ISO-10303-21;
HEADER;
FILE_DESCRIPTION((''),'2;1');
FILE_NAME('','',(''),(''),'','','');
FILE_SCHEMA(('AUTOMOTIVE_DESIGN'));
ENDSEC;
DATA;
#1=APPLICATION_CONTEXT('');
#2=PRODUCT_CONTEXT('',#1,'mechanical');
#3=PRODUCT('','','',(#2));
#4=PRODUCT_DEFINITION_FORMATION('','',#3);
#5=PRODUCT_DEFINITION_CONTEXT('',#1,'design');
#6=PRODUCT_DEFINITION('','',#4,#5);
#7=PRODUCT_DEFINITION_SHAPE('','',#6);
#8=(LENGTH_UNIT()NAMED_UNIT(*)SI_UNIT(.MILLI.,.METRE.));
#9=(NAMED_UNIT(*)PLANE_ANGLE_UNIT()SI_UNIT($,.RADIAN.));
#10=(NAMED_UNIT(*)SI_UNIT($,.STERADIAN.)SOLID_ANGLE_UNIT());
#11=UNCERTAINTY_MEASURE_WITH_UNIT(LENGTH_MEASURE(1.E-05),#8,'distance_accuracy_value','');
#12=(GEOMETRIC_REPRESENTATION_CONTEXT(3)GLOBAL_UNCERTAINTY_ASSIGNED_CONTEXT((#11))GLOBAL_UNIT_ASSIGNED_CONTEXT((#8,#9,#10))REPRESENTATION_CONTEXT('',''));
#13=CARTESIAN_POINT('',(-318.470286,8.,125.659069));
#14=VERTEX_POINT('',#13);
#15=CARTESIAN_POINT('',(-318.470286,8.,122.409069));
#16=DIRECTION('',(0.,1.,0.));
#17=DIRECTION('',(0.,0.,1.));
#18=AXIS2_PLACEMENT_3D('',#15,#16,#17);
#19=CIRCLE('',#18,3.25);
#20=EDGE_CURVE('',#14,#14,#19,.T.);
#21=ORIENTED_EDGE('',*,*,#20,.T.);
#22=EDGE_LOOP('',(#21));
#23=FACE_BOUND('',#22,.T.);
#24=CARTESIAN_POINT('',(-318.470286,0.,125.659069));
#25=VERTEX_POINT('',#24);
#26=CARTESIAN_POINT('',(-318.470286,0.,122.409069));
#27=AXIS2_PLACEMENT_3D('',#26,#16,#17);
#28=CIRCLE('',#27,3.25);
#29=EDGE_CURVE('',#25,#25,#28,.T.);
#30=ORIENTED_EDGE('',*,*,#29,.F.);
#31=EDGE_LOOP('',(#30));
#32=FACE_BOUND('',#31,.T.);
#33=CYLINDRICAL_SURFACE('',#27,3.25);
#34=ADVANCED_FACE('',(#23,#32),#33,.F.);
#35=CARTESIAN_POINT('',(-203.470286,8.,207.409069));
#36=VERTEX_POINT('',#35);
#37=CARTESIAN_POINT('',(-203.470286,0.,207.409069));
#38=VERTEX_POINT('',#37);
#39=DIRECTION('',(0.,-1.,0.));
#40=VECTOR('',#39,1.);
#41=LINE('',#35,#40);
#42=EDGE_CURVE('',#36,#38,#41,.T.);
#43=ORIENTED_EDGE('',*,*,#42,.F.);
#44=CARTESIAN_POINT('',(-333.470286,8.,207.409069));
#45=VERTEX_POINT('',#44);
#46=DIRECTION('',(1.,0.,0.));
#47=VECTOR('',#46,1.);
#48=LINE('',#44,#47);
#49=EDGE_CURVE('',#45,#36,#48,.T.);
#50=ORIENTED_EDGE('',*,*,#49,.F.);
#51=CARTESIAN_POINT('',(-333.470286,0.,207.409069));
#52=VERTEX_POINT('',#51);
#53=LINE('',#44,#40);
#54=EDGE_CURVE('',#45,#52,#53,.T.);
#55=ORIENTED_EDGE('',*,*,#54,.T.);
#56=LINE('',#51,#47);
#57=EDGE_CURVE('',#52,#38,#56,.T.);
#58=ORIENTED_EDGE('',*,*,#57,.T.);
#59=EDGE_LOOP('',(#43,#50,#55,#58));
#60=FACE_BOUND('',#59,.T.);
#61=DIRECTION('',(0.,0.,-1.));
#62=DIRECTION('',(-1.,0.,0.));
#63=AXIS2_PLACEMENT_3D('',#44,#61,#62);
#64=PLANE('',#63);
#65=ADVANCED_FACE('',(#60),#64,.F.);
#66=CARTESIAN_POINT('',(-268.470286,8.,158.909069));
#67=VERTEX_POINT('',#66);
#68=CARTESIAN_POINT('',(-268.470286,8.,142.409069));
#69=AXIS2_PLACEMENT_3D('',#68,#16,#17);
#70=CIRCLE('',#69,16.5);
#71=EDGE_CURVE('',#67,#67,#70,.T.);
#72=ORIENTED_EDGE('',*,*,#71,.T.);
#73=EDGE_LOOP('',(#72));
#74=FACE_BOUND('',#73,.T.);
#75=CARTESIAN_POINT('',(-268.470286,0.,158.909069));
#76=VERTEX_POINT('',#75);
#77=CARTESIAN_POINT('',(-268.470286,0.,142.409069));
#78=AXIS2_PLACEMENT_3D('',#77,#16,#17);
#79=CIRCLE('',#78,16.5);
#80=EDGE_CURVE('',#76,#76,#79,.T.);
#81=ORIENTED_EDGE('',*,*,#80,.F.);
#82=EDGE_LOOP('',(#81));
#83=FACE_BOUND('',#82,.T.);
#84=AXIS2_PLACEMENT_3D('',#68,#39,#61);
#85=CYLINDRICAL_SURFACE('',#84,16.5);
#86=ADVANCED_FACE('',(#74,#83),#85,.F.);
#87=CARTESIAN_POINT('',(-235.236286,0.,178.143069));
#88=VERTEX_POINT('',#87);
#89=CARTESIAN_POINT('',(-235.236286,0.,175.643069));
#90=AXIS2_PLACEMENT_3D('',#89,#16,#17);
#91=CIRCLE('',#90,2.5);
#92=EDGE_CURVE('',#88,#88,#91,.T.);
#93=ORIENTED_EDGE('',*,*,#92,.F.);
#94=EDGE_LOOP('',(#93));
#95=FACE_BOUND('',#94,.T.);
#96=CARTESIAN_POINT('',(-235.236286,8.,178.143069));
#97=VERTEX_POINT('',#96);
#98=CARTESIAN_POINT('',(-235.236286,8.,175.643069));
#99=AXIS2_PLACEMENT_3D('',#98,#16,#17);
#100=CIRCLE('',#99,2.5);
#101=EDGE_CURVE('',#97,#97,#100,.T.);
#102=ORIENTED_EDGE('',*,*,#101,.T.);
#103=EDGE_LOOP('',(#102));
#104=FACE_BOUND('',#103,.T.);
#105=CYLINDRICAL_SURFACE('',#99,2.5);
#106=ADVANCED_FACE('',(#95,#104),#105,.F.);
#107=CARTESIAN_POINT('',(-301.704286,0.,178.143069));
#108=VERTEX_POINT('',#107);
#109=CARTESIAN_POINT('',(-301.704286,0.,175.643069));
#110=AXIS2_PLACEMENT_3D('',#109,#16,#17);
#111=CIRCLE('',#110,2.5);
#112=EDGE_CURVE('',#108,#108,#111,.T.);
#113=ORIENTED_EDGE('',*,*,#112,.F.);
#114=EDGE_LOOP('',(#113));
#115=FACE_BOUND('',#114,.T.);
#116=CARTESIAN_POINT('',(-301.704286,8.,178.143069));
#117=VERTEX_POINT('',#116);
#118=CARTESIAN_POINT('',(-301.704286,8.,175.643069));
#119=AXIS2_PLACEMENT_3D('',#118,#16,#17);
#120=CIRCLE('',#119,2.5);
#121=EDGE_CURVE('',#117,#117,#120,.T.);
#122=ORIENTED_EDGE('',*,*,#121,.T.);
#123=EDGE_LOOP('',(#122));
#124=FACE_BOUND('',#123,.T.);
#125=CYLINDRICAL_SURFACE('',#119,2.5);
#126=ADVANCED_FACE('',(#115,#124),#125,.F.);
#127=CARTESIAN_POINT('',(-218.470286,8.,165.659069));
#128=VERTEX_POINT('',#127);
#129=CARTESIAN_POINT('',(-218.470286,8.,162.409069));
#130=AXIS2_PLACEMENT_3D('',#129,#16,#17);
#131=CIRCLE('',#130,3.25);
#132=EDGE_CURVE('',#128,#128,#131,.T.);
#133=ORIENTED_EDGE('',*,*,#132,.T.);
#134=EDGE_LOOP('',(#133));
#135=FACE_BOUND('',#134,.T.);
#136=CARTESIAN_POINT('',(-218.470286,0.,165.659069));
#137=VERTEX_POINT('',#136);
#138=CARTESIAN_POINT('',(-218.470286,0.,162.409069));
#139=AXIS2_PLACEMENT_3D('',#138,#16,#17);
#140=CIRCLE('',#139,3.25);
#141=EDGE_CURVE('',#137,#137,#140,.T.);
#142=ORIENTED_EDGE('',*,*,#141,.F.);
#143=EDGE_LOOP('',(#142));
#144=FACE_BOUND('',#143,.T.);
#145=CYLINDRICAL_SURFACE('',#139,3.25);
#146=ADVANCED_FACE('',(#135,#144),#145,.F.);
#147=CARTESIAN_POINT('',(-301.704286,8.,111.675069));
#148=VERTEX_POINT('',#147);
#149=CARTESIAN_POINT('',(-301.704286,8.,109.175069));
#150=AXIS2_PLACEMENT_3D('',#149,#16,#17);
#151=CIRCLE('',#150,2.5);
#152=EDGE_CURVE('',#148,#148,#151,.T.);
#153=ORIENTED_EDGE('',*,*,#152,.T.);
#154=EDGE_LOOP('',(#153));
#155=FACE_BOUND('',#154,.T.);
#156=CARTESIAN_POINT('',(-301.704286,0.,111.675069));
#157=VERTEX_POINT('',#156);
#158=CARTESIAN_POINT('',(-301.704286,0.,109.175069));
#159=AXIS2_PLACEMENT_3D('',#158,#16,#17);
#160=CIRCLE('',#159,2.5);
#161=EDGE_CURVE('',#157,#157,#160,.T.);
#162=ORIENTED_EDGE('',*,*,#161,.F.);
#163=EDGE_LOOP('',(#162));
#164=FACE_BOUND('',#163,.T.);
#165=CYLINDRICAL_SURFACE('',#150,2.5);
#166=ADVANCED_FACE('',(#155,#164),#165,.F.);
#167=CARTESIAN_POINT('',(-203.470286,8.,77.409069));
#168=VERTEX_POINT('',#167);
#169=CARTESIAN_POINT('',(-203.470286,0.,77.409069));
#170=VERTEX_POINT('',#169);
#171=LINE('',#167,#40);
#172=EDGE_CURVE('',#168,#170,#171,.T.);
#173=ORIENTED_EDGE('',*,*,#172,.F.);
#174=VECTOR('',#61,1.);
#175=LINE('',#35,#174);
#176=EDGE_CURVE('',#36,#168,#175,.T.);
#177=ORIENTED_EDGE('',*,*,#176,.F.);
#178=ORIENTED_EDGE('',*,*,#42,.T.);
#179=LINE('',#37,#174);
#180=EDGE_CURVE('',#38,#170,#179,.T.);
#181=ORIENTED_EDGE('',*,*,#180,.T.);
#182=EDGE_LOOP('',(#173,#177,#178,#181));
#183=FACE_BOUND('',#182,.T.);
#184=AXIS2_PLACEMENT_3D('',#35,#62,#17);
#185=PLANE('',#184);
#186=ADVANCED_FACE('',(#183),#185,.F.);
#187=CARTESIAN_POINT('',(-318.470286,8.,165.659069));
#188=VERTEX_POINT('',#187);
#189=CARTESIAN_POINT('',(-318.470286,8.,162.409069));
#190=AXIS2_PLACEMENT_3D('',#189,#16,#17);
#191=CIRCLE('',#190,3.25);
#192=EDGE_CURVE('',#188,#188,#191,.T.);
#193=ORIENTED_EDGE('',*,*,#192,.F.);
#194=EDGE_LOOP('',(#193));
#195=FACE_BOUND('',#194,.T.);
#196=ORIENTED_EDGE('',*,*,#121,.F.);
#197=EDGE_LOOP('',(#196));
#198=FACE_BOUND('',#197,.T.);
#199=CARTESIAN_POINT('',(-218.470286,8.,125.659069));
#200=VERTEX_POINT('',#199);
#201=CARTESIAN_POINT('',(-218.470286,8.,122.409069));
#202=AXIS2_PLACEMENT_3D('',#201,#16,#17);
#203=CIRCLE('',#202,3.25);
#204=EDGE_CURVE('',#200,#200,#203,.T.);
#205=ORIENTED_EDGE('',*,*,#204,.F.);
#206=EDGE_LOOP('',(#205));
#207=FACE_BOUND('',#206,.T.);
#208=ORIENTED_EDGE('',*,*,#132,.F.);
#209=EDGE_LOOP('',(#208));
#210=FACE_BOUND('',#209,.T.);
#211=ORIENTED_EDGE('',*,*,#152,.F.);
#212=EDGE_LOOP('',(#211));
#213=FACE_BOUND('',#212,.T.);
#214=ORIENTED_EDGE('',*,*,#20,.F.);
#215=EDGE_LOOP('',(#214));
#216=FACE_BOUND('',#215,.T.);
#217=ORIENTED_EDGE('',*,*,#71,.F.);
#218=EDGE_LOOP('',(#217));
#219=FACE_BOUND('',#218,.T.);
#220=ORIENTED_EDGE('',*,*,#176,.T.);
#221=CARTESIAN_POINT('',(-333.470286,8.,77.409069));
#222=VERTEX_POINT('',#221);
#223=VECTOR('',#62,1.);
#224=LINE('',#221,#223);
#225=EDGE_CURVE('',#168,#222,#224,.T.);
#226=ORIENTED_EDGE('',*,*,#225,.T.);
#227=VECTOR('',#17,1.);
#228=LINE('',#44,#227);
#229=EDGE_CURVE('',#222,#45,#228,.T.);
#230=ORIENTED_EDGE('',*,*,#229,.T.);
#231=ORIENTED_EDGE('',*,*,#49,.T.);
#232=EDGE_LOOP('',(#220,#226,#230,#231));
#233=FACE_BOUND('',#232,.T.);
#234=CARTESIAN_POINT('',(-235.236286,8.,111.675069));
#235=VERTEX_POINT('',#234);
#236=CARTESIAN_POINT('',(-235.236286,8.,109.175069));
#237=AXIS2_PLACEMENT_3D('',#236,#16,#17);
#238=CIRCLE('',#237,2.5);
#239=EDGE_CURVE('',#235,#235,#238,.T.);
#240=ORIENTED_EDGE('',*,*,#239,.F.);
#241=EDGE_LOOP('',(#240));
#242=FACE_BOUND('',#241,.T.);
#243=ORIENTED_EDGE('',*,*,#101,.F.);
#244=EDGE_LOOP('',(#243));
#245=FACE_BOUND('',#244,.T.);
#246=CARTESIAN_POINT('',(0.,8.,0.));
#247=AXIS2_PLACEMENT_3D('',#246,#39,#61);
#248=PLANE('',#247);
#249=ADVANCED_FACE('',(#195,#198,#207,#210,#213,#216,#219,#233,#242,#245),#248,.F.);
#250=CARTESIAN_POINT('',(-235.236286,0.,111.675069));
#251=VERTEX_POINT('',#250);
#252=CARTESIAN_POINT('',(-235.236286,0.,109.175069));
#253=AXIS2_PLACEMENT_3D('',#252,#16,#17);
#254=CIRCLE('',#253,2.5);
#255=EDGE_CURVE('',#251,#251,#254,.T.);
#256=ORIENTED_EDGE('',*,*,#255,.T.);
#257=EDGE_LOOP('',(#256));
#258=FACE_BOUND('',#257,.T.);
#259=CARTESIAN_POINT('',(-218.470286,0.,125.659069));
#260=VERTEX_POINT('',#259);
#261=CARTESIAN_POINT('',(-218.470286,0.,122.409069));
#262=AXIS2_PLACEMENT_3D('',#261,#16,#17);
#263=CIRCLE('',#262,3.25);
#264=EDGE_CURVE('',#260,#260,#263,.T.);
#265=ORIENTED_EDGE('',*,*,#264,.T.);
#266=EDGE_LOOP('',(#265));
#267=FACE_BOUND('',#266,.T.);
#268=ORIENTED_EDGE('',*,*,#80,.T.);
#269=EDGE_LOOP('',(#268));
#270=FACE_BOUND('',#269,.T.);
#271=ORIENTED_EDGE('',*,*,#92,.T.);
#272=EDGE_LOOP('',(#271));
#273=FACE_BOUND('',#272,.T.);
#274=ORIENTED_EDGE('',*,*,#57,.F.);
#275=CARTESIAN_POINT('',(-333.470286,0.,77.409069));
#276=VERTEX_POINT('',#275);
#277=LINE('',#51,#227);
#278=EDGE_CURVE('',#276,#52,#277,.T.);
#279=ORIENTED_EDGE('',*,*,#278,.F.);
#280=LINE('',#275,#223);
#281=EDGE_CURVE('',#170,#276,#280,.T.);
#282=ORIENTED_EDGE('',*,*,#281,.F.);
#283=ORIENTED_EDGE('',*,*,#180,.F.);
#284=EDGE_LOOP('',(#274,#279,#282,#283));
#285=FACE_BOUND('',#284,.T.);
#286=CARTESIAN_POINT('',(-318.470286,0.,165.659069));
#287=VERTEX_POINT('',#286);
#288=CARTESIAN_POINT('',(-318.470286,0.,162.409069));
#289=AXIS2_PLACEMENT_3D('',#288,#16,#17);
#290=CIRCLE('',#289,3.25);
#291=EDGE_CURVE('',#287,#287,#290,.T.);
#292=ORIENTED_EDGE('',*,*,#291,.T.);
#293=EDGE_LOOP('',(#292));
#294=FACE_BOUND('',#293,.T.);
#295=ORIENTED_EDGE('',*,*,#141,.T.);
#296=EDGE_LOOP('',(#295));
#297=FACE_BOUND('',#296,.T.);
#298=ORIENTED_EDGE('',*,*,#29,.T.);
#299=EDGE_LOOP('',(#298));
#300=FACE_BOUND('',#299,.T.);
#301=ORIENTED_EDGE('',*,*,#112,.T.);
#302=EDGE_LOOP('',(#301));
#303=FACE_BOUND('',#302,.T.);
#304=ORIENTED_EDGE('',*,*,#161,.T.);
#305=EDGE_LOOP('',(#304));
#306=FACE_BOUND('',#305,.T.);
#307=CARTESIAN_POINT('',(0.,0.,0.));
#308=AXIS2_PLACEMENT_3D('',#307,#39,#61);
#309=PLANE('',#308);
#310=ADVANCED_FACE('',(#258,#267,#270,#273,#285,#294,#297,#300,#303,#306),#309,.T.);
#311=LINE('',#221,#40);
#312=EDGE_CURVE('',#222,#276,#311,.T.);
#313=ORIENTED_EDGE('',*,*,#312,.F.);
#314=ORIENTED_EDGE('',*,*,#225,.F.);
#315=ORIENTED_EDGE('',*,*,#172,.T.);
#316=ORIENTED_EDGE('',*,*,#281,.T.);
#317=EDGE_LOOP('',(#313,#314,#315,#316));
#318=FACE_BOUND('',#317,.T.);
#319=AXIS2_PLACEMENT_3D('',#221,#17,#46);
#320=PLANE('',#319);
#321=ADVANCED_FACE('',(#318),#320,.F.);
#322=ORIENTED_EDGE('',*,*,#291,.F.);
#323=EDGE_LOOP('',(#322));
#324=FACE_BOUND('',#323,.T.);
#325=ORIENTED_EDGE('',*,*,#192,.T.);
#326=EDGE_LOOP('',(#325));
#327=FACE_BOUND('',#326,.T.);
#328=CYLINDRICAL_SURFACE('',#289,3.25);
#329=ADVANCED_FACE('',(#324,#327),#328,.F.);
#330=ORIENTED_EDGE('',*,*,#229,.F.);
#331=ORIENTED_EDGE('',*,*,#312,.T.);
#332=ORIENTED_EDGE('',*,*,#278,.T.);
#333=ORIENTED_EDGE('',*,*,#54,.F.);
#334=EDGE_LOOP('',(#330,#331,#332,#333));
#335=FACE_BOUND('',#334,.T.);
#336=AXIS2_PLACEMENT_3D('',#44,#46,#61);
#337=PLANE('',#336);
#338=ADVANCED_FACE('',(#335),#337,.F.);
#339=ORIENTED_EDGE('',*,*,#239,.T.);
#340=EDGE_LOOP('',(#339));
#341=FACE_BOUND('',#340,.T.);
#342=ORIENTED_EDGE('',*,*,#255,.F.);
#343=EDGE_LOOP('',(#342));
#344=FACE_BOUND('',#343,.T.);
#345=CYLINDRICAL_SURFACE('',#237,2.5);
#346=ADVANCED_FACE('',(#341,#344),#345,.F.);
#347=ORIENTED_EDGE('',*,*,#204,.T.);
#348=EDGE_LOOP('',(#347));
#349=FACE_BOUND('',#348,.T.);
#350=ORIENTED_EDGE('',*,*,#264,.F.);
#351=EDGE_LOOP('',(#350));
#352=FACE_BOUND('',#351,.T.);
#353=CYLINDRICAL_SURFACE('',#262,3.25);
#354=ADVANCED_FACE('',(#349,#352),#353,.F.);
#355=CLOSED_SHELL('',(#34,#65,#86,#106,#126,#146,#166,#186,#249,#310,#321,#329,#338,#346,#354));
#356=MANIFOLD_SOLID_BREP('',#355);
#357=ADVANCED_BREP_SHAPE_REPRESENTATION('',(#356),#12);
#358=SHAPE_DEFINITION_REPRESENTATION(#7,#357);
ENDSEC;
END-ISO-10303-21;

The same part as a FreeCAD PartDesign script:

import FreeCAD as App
import Part
import Sketcher

V = App.Vector
Q = App.Units.Quantity


def add_polygon(sketch, points):
    """Adds a closed chain of lines whose ends are joined by coincident constraints."""
    first, n = sketch.GeometryCount, len(points)
    for a, b in zip(points, points[1:] + points[:1]):
        sketch.addGeometry(Part.LineSegment(App.Vector(*a, 0), App.Vector(*b, 0)), False)
    for i in range(n):
        sketch.addConstraint(Sketcher.Constraint("Coincident", first + i, 2, first + (i + 1) % n, 1))

doc = App.newDocument("Part")
body = doc.addObject("PartDesign::Body", "Body")

# Sketch on XZ plane
sketch1 = body.newObject("Sketcher::SketchObject", "Sketch")
sketch1.AttachmentSupport = (doc.getObject("XZ_Plane"), [""])
sketch1.MapMode = "FlatFace"
add_polygon(sketch1, [(-333, 77), (-333, 207), (-203, 207), (-203, 77)])  # lines 0-3
sketch1.addGeometry(Part.Circle(V(-268, 142, 0), V(0, 0, 1), 16), False)  # 4
sketch1.addConstraint([
    Sketcher.Constraint("Vertical", 0),
    Sketcher.Constraint("Horizontal", 1),
    Sketcher.Constraint("Vertical", 2),
    Sketcher.Constraint("Horizontal", 3),
    Sketcher.Constraint("Equal", 3, 0),
    Sketcher.Constraint("Diameter", 4, Q("33 mm")),
    Sketcher.Constraint("DistanceX", 1, 1, 1, 2, Q("130 mm")),
    Sketcher.Constraint("DistanceX", 0, 2, 4, 3, Q("65 mm")),
    Sketcher.Constraint("DistanceY", 4, 3, 0, 2, Q("65 mm")),
    Sketcher.Constraint("DistanceY", -1, 1, 4, 3, Q("142.409069 mm")),
    Sketcher.Constraint("DistanceX", 4, 3, -1, 1, Q("268.470286 mm")),
])
pad1 = body.newObject("PartDesign::Pad", "Pad")
pad1.Profile = sketch1
pad1.Length = 8
pad1.Reversed = True

# Sketch on XZ plane
sketch2 = body.newObject("Sketcher::SketchObject", "Sketch001")
sketch2.AttachmentSupport = (doc.getObject("XZ_Plane"), [""])
sketch2.MapMode = "FlatFace"
sketch2.AttachmentOffset = App.Placement(V(0, 0, -8), App.Rotation())
sketch2.addGeometry([
    Part.Circle(V(-318.5, 162.4, 0), V(0, 0, 1), 3.2),
    Part.Circle(V(-318.5, 122.4, 0), V(0, 0, 1), 3.2),
    Part.Circle(V(-218.5, 122.4, 0), V(0, 0, 1), 3.2),
    Part.Circle(V(-218.5, 162.4, 0), V(0, 0, 1), 3.2),
], False)
sketch2.addConstraint([
    Sketcher.Constraint("Equal", 0, 1),
    Sketcher.Constraint("Equal", 1, 2),
    Sketcher.Constraint("Equal", 2, 3),
    Sketcher.Constraint("Horizontal", 1, 3, 2, 3),
    Sketcher.Constraint("Horizontal", 0, 3, 3, 3),
    Sketcher.Constraint("Vertical", 0, 3, 1, 3),
    Sketcher.Constraint("Vertical", 2, 3, 3, 3),
    Sketcher.Constraint("Diameter", 0, Q("6.5 mm")),
    Sketcher.Constraint("DistanceY", 1, 3, 0, 3, Q("40 mm")),
    Sketcher.Constraint("DistanceX", 1, 3, 2, 3, Q("100 mm")),
    Sketcher.Constraint("DistanceY", -1, 1, 0, 3, Q("162.409069 mm")),
    Sketcher.Constraint("DistanceX", 0, 3, -1, 1, Q("318.470286 mm")),
])
pocket1 = body.newObject("PartDesign::Pocket", "Pocket")
pocket1.Profile = sketch2
pocket1.Type = "ThroughAll"
pocket1.Reversed = True

# Sketch on XZ plane
sketch3 = body.newObject("Sketcher::SketchObject", "Sketch002")
sketch3.AttachmentSupport = (doc.getObject("XZ_Plane"), [""])
sketch3.MapMode = "FlatFace"
sketch3.AttachmentOffset = App.Placement(V(0, 0, -8), App.Rotation())
sketch3.addGeometry([
    Part.Circle(V(-301.7, 109.2, 0), V(0, 0, 1), 2.5),
    Part.Circle(V(-235.2, 109.2, 0), V(0, 0, 1), 2.5),
    Part.Circle(V(-235.2, 175.6, 0), V(0, 0, 1), 2.5),
    Part.Circle(V(-301.7, 175.6, 0), V(0, 0, 1), 2.5),
], False)
sketch3.addConstraint([
    Sketcher.Constraint("Equal", 0, 1),
    Sketcher.Constraint("Equal", 1, 2),
    Sketcher.Constraint("Equal", 2, 3),
    Sketcher.Constraint("Horizontal", 0, 3, 1, 3),
    Sketcher.Constraint("Horizontal", 2, 3, 3, 3),
    Sketcher.Constraint("Vertical", 1, 3, 2, 3),
    Sketcher.Constraint("Vertical", 0, 3, 3, 3),
    Sketcher.Constraint("Diameter", 0, Q("5 mm")),
    Sketcher.Constraint("DistanceX", 0, 3, 1, 3, Q("66.468 mm")),
    Sketcher.Constraint("DistanceY", 1, 3, 2, 3, Q("66.468 mm")),
    Sketcher.Constraint("DistanceY", -1, 1, 0, 3, Q("109.175069 mm")),
    Sketcher.Constraint("DistanceX", 0, 3, -1, 1, Q("301.704286 mm")),
])
doc.recompute()
hole = body.newObject("PartDesign::Hole", "Hole")
hole.Profile = sketch3
hole.ThreadType = "None"
hole.Diameter = 5
hole.DepthType = "ThroughAll"
hole.Reversed = True

doc.recompute()
